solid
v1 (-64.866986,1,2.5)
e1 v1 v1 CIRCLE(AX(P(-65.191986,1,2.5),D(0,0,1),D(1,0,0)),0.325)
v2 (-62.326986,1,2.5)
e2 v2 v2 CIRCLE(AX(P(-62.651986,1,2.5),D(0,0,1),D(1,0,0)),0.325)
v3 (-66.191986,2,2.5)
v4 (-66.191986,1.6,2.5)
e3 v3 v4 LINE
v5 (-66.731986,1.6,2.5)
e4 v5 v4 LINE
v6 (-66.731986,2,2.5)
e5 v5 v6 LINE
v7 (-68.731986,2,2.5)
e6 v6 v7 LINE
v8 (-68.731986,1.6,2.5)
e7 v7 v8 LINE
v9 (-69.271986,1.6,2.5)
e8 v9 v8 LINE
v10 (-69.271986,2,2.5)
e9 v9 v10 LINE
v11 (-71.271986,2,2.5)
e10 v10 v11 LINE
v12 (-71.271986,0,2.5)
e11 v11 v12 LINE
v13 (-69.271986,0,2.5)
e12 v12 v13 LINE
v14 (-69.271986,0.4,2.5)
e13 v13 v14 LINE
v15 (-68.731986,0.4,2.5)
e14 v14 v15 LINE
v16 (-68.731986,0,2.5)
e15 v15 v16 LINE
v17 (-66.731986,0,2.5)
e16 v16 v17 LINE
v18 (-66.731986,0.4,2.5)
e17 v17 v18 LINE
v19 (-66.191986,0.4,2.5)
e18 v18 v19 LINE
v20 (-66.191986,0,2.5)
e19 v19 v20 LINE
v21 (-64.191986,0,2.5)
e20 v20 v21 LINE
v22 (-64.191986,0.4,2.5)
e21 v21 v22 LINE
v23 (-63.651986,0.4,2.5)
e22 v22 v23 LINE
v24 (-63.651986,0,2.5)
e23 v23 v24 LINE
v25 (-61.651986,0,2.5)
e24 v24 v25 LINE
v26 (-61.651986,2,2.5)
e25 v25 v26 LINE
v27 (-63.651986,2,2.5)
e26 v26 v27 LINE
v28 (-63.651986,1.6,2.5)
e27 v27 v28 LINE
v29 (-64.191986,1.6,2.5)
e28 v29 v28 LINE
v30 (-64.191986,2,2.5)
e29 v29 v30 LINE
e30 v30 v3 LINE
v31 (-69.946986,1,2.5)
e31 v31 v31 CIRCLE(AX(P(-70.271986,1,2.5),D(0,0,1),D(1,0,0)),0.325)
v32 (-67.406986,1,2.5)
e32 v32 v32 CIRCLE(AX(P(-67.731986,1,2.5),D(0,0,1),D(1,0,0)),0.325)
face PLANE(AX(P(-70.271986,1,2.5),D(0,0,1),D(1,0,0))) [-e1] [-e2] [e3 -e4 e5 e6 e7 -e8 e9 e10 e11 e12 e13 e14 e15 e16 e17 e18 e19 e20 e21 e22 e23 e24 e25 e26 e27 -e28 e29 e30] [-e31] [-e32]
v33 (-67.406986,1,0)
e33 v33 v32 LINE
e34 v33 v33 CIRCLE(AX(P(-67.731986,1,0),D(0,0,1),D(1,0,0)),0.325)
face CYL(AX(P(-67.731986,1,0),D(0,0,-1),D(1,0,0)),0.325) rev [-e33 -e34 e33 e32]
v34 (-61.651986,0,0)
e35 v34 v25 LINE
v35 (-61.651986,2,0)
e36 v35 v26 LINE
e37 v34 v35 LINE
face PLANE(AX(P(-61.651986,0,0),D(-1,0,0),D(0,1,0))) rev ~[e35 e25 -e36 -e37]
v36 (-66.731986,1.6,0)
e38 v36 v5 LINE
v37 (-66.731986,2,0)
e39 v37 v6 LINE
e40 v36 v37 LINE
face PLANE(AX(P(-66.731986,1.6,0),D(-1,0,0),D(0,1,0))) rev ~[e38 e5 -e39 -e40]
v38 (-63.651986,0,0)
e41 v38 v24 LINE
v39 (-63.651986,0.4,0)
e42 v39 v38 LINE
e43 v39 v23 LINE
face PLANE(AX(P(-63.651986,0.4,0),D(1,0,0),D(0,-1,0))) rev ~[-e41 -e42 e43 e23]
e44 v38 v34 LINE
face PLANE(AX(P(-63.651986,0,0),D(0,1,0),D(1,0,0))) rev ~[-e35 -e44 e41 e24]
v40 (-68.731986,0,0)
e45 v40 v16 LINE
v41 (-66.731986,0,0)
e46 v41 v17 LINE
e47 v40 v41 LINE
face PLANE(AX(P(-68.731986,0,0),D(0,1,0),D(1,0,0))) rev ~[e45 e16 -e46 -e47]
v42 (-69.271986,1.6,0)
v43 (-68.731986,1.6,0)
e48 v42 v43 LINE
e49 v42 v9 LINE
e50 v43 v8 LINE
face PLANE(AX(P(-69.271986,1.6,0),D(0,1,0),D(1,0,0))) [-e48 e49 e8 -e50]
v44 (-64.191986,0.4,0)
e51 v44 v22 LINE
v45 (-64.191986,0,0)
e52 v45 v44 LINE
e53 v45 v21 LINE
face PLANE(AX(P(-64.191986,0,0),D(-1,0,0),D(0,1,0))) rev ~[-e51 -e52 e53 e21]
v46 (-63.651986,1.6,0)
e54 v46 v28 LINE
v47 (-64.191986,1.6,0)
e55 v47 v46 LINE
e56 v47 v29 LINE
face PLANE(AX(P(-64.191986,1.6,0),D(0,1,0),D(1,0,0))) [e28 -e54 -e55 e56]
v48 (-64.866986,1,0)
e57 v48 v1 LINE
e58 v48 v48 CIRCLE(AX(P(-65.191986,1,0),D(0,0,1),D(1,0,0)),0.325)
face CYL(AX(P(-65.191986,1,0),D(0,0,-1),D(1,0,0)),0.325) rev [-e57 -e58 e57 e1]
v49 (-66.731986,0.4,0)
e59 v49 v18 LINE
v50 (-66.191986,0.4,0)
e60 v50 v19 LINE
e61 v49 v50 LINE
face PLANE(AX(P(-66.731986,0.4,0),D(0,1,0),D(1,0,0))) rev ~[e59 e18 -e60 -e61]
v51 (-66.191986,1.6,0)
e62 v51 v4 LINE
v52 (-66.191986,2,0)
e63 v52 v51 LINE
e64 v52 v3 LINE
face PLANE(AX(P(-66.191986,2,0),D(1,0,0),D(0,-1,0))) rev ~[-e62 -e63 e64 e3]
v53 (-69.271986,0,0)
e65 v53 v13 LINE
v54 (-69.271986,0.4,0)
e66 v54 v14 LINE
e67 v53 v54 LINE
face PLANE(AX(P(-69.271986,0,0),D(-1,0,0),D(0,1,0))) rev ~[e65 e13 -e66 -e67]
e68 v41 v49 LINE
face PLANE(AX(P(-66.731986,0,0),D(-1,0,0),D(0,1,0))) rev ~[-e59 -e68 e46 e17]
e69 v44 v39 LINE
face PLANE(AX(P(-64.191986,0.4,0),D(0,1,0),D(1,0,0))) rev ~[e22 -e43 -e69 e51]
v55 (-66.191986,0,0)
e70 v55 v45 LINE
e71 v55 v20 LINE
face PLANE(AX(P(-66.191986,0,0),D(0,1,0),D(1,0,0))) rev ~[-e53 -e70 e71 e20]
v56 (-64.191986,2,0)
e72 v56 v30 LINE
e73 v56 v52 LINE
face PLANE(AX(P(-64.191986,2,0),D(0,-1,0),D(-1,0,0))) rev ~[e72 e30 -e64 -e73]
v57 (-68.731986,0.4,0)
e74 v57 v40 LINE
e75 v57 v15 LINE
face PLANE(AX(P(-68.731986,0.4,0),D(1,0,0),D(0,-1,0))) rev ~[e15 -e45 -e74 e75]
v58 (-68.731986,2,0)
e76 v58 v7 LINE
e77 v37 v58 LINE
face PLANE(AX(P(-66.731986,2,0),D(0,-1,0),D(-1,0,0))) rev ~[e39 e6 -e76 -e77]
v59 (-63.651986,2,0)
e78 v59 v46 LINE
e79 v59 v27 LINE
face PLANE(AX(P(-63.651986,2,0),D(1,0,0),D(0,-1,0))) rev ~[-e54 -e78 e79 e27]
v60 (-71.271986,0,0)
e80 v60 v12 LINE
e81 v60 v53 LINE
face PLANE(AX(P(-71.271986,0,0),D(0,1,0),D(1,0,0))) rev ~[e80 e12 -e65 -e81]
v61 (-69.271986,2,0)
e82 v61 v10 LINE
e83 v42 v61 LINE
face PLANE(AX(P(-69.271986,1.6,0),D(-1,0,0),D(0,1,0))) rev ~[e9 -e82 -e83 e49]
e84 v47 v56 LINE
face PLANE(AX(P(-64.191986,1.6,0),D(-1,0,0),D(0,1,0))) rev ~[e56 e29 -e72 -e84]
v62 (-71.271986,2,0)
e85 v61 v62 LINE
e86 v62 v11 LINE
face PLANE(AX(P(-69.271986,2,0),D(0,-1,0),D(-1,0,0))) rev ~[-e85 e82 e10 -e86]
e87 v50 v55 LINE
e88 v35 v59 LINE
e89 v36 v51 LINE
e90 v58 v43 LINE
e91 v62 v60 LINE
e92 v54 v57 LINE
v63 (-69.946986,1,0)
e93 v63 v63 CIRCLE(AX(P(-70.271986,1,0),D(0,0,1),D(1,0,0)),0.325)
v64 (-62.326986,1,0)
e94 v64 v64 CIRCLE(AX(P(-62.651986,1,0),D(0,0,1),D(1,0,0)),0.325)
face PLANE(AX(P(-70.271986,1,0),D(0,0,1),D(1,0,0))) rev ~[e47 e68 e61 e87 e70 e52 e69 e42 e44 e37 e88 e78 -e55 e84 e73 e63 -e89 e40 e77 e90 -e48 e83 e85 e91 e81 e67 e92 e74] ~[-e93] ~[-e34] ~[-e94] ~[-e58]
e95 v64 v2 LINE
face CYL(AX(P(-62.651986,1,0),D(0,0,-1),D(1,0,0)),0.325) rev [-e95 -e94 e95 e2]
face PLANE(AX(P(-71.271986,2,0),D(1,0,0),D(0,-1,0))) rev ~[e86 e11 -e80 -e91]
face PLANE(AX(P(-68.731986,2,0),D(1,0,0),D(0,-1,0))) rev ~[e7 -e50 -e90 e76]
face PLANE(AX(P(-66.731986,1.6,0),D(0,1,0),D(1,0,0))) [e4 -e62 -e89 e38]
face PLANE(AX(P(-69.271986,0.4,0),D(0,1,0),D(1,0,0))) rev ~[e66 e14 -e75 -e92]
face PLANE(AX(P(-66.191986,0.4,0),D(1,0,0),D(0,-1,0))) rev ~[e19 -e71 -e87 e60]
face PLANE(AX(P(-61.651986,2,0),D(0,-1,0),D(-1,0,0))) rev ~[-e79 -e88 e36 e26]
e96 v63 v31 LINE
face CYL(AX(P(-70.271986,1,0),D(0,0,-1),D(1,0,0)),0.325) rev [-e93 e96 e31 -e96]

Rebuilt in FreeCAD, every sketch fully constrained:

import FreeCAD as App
import Part
import Sketcher

V = App.Vector

doc = App.newDocument("Part")
params = doc.addObject("Spreadsheet::Sheet", "Params")
for row, (alias, value) in enumerate([
    ("sketch1_diameter", "0.65 mm"),
    ("sketch1_width", "2 mm"),
    ("sketch1_height", "0.4 mm"),
    ("sketch1_width2", "0.54 mm"),
    ("pad1_length", "2.5 mm"),
], start=1):
    params.set(f"A{row}", alias)
    params.set(f"B{row}", "=" + value)
    params.setAlias(f"B{row}", alias)

body = doc.addObject("PartDesign::Body", "Body")

# Sketch on XY plane
sketch1 = doc.addObject("Sketcher::SketchObject", "Sketch")
body.addObject(sketch1)
sketch1.AttachmentSupport = (doc.XY_Plane, [""])
sketch1.MapMode = "FlatFace"
sketch1.addGeometry([
    Part.LineSegment(V(-71.27, 0, 0), V(-69.27, 0, 0)),  # 0
    Part.LineSegment(V(-69.27, 0, 0), V(-69.27, 0.4, 0)),  # 1
    Part.LineSegment(V(-69.27, 0.4, 0), V(-68.73, 0.4, 0)),  # 2
    Part.LineSegment(V(-68.73, 0.4, 0), V(-68.73, 0, 0)),  # 3
    Part.LineSegment(V(-68.73, 0, 0), V(-66.73, 0, 0)),  # 4
    Part.LineSegment(V(-66.73, 0, 0), V(-66.73, 0.4, 0)),  # 5
    Part.LineSegment(V(-66.73, 0.4, 0), V(-66.19, 0.4, 0)),  # 6
    Part.LineSegment(V(-66.19, 0.4, 0), V(-66.19, 0, 0)),  # 7
    Part.LineSegment(V(-66.19, 0, 0), V(-64.19, 0, 0)),  # 8
    Part.LineSegment(V(-64.19, 0, 0), V(-64.19, 0.4, 0)),  # 9
    Part.LineSegment(V(-64.19, 0.4, 0), V(-63.65, 0.4, 0)),  # 10
    Part.LineSegment(V(-63.65, 0.4, 0), V(-63.65, 0, 0)),  # 11
    Part.LineSegment(V(-63.65, 0, 0), V(-61.65, 0, 0)),  # 12
    Part.LineSegment(V(-61.65, 0, 0), V(-61.65, 2, 0)),  # 13
    Part.LineSegment(V(-61.65, 2, 0), V(-63.65, 2, 0)),  # 14
    Part.LineSegment(V(-63.65, 2, 0), V(-63.65, 1.6, 0)),  # 15
    Part.LineSegment(V(-63.65, 1.6, 0), V(-64.19, 1.6, 0)),  # 16
    Part.LineSegment(V(-64.19, 1.6, 0), V(-64.19, 2, 0)),  # 17
    Part.LineSegment(V(-64.19, 2, 0), V(-66.19, 2, 0)),  # 18
    Part.LineSegment(V(-66.19, 2, 0), V(-66.19, 1.6, 0)),  # 19
    Part.LineSegment(V(-66.19, 1.6, 0), V(-66.73, 1.6, 0)),  # 20
    Part.LineSegment(V(-66.73, 1.6, 0), V(-66.73, 2, 0)),  # 21
    Part.LineSegment(V(-66.73, 2, 0), V(-68.73, 2, 0)),  # 22
    Part.LineSegment(V(-68.73, 2, 0), V(-68.73, 1.6, 0)),  # 23
    Part.LineSegment(V(-68.73, 1.6, 0), V(-69.27, 1.6, 0)),  # 24
    Part.LineSegment(V(-69.27, 1.6, 0), V(-69.27, 2, 0)),  # 25
    Part.LineSegment(V(-69.27, 2, 0), V(-71.27, 2, 0)),  # 26
    Part.LineSegment(V(-71.27, 2, 0), V(-71.27, 0, 0)),  # 27
    Part.Circle(V(-70.27, 1, 0), V(0, 0, 1), 0.33),  # 28
    Part.Circle(V(-67.73, 1, 0), V(0, 0, 1), 0.33),  # 29
    Part.Circle(V(-65.19, 1, 0), V(0, 0, 1), 0.33),  # 30
    Part.Circle(V(-62.65, 1, 0), V(0, 0, 1), 0.33),  # 31
], False)
sketch1.addConstraint([
    Sketcher.Constraint("Coincident", 0, 2, 1, 1),
    Sketcher.Constraint("Coincident", 1, 2, 2, 1),
    Sketcher.Constraint("Coincident", 2, 2, 3, 1),
    Sketcher.Constraint("Coincident", 3, 2, 4, 1),
    Sketcher.Constraint("Coincident", 4, 2, 5, 1),
    Sketcher.Constraint("Coincident", 5, 2, 6, 1),
    Sketcher.Constraint("Coincident", 6, 2, 7, 1),
    Sketcher.Constraint("Coincident", 7, 2, 8, 1),
    Sketcher.Constraint("Coincident", 8, 2, 9, 1),
    Sketcher.Constraint("Coincident", 9, 2, 10, 1),
    Sketcher.Constraint("Coincident", 10, 2, 11, 1),
    Sketcher.Constraint("Coincident", 11, 2, 12, 1),
    Sketcher.Constraint("Coincident", 12, 2, 13, 1),
    Sketcher.Constraint("Coincident", 13, 2, 14, 1),
    Sketcher.Constraint("Coincident", 14, 2, 15, 1),
    Sketcher.Constraint("Coincident", 15, 2, 16, 1),
    Sketcher.Constraint("Coincident", 16, 2, 17, 1),
    Sketcher.Constraint("Coincident", 17, 2, 18, 1),
    Sketcher.Constraint("Coincident", 18, 2, 19, 1),
    Sketcher.Constraint("Coincident", 19, 2, 20, 1),
    Sketcher.Constraint("Coincident", 20, 2, 21, 1),
    Sketcher.Constraint("Coincident", 21, 2, 22, 1),
    Sketcher.Constraint("Coincident", 22, 2, 23, 1),
    Sketcher.Constraint("Coincident", 23, 2, 24, 1),
    Sketcher.Constraint("Coincident", 24, 2, 25, 1),
    Sketcher.Constraint("Coincident", 25, 2, 26, 1),
    Sketcher.Constraint("Coincident", 26, 2, 27, 1),
    Sketcher.Constraint("Coincident", 27, 2, 0, 1),
    Sketcher.Constraint("Horizontal", 0),
    Sketcher.Constraint("Vertical", 1),
    Sketcher.Constraint("Horizontal", 2),
    Sketcher.Constraint("Vertical", 3),
    Sketcher.Constraint("Horizontal", 4),
    Sketcher.Constraint("Vertical", 5),
    Sketcher.Constraint("Horizontal", 6),
    Sketcher.Constraint("Vertical", 7),
    Sketcher.Constraint("Horizontal", 8),
    Sketcher.Constraint("Vertical", 9),
    Sketcher.Constraint("Horizontal", 10),
    Sketcher.Constraint("Vertical", 11),
    Sketcher.Constraint("Horizontal", 12),
    Sketcher.Constraint("Vertical", 13),
    Sketcher.Constraint("Horizontal", 14),
    Sketcher.Constraint("Vertical", 15),
    Sketcher.Constraint("Horizontal", 16),
    Sketcher.Constraint("Vertical", 17),
    Sketcher.Constraint("Horizontal", 18),
    Sketcher.Constraint("Vertical", 19),
    Sketcher.Constraint("Horizontal", 20),
    Sketcher.Constraint("Vertical", 21),
    Sketcher.Constraint("Horizontal", 22),
    Sketcher.Constraint("Vertical", 23),
    Sketcher.Constraint("Horizontal", 24),
    Sketcher.Constraint("Vertical", 25),
    Sketcher.Constraint("Horizontal", 26),
    Sketcher.Constraint("Vertical", 27),
    Sketcher.Constraint("Equal", 28, 29),
    Sketcher.Constraint("Equal", 29, 30),
    Sketcher.Constraint("Equal", 30, 31),
    Sketcher.Constraint("PointOnObject", 0, 2, -1),
    Sketcher.Constraint("PointOnObject", 3, 2, -1),
    Sketcher.Constraint("PointOnObject", 7, 2, -1),
    Sketcher.Constraint("PointOnObject", 11, 2, -1),
    Sketcher.Constraint("Horizontal", 28, 3, 29, 3),
    Sketcher.Constraint("Horizontal", 29, 3, 30, 3),
    Sketcher.Constraint("Horizontal", 30, 3, 31, 3),
    Sketcher.Constraint("Horizontal", 2, 2, 5, 2),
    Sketcher.Constraint("Horizontal", 6, 2, 9, 2),
    Sketcher.Constraint("Horizontal", 14, 2, 17, 2),
    Sketcher.Constraint("Horizontal", 16, 2, 19, 2),
    Sketcher.Constraint("Horizontal", 18, 2, 21, 2),
    Sketcher.Constraint("Horizontal", 20, 2, 23, 2),
    Sketcher.Constraint("Horizontal", 22, 2, 25, 2),
    Sketcher.Constraint("Vertical", 11, 2, 14, 2),
    Sketcher.Constraint("Vertical", 9, 2, 16, 2),
    Sketcher.Constraint("Vertical", 7, 2, 18, 2),
    Sketcher.Constraint("Vertical", 5, 2, 20, 2),
    Sketcher.Constraint("Vertical", 3, 2, 22, 2),
    Sketcher.Constraint("Vertical", 1, 2, 24, 2),
    Sketcher.Constraint("Equal", 0, 4),
    Sketcher.Constraint("Equal", 2, 6),
    Sketcher.Constraint("Equal", 4, 8),
    Sketcher.Constraint("Equal", 6, 10),
    Sketcher.Constraint("Equal", 8, 12),
    Sketcher.Constraint("Equal", 26, 13),
    Sketcher.Constraint("Equal", 11, 15),
    Sketcher.Constraint("Diameter", 28, 0.65),
    Sketcher.Constraint("DistanceX", 0, 1, 0, 2, 2.0),
    Sketcher.Constraint("DistanceY", 1, 1, 1, 2, 0.4),
    Sketcher.Constraint("DistanceY", -1, 1, 28, 3, 1.0),
    Sketcher.Constraint("DistanceX", 28, 3, 0, 2, 1.0),
    Sketcher.Constraint("DistanceX", 2, 2, 29, 3, 1.0),
    Sketcher.Constraint("DistanceX", 6, 2, 30, 3, 1.0),
    Sketcher.Constraint("DistanceX", 10, 2, 31, 3, 1.0),
    Sketcher.Constraint("DistanceX", 2, 1, 2, 2, 0.54),
    Sketcher.Constraint("DistanceX", 28, 3, -1, 1, 70.271986),
])
sketch1.setExpression("Constraints[86]", "Params.sketch1_diameter")
sketch1.setExpression("Constraints[87]", "Params.sketch1_width")
sketch1.setExpression("Constraints[88]", "Params.sketch1_height")
sketch1.setExpression("Constraints[94]", "Params.sketch1_width2")
pad1 = doc.addObject("PartDesign::Pad", "Pad")
body.addObject(pad1)
pad1.Profile = sketch1
pad1.setExpression("Length", "Params.pad1_length")

doc.recompute()
